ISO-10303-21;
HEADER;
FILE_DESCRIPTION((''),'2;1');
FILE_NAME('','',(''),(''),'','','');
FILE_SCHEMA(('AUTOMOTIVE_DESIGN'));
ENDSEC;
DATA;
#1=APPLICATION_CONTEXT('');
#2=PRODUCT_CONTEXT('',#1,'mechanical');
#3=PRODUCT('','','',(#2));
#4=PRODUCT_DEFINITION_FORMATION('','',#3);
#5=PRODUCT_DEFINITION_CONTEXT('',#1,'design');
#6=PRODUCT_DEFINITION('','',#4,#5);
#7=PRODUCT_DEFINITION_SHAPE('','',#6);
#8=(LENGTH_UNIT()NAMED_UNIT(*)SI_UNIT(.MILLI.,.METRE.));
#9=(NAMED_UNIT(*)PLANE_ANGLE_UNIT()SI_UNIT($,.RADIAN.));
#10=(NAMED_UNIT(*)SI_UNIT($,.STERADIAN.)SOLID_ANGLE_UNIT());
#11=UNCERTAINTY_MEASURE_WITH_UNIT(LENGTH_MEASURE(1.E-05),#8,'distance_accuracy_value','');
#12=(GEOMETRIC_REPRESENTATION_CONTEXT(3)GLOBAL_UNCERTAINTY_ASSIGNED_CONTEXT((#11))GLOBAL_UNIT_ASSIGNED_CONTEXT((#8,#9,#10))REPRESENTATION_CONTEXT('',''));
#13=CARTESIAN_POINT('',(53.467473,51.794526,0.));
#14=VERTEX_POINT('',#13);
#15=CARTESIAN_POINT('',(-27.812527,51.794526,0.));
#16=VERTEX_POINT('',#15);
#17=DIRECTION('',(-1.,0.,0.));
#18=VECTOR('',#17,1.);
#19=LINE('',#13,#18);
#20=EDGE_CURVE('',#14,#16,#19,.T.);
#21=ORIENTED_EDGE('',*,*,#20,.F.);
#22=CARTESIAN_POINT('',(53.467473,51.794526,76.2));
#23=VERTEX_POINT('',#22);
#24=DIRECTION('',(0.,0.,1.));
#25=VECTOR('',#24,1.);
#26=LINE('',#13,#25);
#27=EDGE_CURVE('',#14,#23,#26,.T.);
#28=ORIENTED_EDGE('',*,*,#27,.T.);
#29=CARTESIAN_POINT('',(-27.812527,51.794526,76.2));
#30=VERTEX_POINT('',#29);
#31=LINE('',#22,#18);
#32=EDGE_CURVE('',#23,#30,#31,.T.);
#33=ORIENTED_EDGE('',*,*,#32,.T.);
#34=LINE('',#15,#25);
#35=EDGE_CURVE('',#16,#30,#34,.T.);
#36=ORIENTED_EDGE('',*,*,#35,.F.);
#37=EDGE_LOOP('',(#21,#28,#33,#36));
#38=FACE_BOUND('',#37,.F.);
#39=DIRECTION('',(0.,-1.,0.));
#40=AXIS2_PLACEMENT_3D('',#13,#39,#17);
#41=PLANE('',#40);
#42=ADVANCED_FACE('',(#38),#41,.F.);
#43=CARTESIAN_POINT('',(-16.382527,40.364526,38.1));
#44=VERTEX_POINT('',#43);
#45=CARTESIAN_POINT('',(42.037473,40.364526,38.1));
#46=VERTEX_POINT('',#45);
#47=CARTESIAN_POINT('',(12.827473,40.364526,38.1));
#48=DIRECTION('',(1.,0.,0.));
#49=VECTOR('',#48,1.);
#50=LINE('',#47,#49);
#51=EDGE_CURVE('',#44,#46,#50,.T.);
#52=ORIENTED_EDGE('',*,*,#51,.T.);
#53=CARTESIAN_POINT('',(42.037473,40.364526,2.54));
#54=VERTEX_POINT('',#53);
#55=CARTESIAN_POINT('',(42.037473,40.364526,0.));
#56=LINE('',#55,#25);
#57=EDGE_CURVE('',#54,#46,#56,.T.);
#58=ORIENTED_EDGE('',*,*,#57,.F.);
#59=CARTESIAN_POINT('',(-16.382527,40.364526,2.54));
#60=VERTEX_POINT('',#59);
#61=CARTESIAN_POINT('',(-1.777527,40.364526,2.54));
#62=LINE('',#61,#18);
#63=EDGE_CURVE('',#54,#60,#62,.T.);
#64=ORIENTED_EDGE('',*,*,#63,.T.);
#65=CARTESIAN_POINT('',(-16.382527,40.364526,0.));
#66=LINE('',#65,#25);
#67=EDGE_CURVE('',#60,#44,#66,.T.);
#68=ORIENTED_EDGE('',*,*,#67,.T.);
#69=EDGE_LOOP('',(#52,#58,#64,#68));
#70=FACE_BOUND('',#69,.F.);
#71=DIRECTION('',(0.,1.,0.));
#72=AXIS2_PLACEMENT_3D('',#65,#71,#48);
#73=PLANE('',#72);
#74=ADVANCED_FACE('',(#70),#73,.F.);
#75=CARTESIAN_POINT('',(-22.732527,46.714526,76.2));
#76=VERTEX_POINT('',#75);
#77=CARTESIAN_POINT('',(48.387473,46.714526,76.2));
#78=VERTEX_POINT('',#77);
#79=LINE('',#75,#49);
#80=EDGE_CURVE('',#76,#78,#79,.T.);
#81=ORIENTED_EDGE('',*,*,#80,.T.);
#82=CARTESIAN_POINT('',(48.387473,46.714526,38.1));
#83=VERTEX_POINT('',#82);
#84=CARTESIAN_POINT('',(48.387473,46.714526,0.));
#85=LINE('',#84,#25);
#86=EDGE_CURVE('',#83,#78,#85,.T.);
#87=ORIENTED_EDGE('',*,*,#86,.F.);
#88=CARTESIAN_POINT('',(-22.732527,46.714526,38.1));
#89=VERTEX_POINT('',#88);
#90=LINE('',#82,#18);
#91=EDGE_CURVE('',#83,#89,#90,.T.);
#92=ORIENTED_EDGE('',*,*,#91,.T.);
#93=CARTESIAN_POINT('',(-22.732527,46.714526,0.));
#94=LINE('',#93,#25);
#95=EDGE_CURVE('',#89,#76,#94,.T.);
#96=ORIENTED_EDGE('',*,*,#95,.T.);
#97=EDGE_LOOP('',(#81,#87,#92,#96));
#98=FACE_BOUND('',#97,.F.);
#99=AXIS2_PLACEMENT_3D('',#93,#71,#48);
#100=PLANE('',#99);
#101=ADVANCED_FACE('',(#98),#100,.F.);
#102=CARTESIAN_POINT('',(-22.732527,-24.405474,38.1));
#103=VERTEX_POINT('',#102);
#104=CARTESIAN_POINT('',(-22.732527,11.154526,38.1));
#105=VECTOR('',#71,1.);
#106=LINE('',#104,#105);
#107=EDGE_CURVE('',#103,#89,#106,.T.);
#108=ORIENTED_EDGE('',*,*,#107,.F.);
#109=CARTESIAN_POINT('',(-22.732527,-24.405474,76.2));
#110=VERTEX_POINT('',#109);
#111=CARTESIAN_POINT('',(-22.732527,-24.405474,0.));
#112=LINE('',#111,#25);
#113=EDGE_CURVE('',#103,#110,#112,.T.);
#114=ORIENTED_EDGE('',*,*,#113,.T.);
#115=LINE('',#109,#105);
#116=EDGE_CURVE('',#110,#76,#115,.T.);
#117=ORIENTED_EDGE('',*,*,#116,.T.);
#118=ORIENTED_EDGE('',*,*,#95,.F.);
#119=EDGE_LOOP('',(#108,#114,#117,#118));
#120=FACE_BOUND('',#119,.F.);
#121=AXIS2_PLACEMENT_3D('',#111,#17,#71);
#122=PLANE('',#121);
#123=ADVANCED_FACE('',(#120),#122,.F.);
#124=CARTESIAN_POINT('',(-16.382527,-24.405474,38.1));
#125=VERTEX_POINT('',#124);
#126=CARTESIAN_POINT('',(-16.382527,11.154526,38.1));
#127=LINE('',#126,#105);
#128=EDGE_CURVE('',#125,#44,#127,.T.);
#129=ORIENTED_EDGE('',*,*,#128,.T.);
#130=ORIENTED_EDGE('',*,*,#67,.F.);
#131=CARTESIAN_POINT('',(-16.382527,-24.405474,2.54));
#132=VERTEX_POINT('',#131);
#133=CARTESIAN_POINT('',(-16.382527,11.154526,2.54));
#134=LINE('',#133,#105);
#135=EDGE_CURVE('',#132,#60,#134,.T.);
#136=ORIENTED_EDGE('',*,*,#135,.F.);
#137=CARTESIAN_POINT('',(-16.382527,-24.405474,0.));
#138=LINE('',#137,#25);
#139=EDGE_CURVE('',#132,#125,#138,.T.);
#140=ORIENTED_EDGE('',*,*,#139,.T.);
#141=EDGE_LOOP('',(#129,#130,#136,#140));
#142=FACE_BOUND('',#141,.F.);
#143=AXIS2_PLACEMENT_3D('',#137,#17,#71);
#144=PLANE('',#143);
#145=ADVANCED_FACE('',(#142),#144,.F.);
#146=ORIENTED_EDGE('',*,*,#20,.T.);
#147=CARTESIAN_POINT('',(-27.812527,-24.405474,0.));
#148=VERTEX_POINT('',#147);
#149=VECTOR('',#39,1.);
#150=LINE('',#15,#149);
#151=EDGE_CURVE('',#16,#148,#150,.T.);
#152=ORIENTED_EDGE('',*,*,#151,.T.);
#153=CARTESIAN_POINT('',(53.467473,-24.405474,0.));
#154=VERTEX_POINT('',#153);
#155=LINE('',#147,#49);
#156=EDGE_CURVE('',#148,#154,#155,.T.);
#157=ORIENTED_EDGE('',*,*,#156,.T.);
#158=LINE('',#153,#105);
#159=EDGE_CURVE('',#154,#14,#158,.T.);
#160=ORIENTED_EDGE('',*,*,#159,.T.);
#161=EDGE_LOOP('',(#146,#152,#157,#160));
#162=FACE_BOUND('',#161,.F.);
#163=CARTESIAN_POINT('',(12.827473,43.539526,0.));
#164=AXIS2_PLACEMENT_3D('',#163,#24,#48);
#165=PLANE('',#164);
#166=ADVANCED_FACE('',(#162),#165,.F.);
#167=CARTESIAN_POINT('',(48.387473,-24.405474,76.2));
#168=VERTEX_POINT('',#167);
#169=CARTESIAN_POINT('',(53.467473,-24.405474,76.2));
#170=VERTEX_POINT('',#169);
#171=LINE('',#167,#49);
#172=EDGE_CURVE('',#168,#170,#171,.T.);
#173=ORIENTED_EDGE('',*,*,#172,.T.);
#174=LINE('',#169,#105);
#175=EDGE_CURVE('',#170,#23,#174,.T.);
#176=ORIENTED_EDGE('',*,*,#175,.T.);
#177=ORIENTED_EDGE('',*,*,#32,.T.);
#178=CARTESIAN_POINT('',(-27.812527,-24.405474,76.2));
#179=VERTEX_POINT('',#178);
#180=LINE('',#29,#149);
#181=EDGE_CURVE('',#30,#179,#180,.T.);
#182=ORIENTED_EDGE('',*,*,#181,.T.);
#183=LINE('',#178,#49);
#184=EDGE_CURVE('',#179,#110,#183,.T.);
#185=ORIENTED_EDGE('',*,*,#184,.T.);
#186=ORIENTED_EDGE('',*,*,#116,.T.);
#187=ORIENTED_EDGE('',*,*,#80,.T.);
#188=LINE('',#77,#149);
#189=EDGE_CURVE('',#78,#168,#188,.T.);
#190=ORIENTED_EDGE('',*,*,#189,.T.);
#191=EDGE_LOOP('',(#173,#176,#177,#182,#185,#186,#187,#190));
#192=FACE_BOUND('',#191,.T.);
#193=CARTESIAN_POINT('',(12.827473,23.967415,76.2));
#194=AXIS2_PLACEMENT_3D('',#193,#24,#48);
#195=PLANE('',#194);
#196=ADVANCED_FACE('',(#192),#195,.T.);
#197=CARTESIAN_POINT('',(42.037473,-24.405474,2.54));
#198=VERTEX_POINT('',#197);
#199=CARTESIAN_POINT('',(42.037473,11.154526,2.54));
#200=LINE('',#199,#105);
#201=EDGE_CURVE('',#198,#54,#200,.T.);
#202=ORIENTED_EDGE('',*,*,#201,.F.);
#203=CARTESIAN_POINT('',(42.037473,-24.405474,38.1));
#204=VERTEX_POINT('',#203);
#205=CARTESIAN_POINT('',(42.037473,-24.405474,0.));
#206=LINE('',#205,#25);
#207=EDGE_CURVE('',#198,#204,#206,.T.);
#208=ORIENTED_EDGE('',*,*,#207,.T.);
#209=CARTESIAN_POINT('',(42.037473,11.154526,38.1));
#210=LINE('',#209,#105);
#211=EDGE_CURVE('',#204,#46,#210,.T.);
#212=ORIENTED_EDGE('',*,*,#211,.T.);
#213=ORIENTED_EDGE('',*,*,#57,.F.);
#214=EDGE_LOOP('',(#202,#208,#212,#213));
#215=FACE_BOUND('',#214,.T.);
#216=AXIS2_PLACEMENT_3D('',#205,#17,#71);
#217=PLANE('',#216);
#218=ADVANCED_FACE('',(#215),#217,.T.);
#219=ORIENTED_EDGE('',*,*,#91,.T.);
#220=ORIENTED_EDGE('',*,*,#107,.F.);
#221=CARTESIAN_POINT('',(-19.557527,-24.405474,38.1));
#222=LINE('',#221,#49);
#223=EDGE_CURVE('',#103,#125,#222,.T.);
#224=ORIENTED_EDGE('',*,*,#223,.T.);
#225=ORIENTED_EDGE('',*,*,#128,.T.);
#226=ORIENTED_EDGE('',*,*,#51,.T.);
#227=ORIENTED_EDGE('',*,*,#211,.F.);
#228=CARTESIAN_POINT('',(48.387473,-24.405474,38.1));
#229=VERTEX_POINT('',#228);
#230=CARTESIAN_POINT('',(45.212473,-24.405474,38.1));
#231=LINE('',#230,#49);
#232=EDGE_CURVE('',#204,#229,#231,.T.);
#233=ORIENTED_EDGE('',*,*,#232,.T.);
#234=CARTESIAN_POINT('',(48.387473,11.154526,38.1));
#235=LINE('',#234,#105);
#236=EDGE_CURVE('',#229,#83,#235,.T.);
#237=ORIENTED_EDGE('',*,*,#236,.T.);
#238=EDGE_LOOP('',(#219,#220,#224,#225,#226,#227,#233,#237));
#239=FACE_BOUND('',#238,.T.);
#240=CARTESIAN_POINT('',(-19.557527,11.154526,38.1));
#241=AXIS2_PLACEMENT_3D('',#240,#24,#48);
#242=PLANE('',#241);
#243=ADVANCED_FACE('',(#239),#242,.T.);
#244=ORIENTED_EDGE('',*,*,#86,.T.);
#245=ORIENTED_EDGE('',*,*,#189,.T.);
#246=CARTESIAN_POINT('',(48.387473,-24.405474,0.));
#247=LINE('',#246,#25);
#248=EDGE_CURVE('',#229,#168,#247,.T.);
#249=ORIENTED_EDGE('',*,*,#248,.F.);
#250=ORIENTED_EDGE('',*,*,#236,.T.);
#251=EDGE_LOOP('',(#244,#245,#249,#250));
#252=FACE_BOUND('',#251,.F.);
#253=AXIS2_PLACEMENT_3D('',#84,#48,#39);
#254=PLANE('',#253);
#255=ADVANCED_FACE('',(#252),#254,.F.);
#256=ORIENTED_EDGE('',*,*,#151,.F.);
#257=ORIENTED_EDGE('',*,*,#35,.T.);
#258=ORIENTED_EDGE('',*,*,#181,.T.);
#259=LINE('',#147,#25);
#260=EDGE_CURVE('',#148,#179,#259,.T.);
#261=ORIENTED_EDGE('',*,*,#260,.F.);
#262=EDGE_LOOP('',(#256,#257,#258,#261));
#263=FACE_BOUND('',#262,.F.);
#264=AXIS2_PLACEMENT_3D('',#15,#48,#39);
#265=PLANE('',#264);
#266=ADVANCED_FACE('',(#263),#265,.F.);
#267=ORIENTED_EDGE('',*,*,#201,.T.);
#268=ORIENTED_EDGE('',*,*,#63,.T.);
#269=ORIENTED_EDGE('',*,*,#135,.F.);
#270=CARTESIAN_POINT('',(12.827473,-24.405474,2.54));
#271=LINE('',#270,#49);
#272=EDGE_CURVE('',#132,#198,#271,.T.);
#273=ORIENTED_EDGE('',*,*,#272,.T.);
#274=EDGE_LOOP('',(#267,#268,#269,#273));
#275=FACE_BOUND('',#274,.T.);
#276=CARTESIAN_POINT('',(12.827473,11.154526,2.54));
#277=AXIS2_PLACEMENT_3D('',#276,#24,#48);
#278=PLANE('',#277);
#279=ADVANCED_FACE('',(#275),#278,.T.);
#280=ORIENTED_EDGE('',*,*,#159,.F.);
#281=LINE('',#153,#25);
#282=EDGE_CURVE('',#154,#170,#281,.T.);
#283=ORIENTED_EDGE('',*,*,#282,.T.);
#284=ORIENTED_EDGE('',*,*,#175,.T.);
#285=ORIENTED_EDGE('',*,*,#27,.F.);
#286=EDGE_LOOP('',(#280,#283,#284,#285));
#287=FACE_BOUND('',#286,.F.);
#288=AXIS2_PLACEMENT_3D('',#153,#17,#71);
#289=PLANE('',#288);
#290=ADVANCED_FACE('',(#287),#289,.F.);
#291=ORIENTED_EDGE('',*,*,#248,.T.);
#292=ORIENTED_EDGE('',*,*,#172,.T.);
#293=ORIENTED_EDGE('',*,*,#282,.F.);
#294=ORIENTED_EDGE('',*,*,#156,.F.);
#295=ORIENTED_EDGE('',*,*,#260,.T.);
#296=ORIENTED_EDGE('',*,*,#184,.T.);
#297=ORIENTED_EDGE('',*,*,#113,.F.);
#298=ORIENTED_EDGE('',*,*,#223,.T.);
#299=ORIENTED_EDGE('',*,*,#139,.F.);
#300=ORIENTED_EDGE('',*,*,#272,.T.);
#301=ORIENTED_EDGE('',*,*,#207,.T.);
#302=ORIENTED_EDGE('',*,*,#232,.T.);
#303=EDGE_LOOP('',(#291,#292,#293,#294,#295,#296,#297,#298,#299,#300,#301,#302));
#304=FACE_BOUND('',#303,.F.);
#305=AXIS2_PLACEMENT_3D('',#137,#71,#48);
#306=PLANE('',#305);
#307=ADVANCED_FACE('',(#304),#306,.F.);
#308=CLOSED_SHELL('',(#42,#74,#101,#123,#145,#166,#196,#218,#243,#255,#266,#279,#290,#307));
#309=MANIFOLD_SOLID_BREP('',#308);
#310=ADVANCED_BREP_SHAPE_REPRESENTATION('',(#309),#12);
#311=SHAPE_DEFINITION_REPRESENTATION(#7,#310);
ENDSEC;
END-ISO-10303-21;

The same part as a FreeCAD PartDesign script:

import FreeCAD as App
import Part
import Sketcher
Q = App.Units.Quantity


def add_polygon(sketch, points):
    """Adds a closed chain of lines whose ends are joined by coincident constraints."""
    first, n = sketch.GeometryCount, len(points)
    for a, b in zip(points, points[1:] + points[:1]):
        sketch.addGeometry(Part.LineSegment(App.Vector(*a, 0), App.Vector(*b, 0)), False)
    for i in range(n):
        sketch.addConstraint(Sketcher.Constraint("Coincident", first + i, 2, first + (i + 1) % n, 1))

doc = App.newDocument("Part")
body = doc.addObject("PartDesign::Body", "Body")

# Sketch on XY plane
sketch1 = body.newObject("Sketcher::SketchObject", "Sketch")
sketch1.AttachmentSupport = (doc.getObject("XY_Plane"), [""])
sketch1.MapMode = "FlatFace"
add_polygon(sketch1, [(-28, 52), (-28, -24), (-23, -24), (-23, 47), (48, 47), (48, -24), (53, -24), (53, 52)])  # lines 0-7
sketch1.addConstraint([
    Sketcher.Constraint("Vertical", 0),
    Sketcher.Constraint("Horizontal", 1),
    Sketcher.Constraint("Vertical", 2),
    Sketcher.Constraint("Horizontal", 3),
    Sketcher.Constraint("Vertical", 4),
    Sketcher.Constraint("Horizontal", 5),
    Sketcher.Constraint("Vertical", 6),
    Sketcher.Constraint("Horizontal", 7),
    Sketcher.Constraint("Horizontal", 1, 2, 4, 2),
    Sketcher.Constraint("Equal", 1, 5),
    Sketcher.Constraint("Equal", 3, 2),
    Sketcher.Constraint("DistanceY", 0, 2, 0, 1, Q("3 in")),
    Sketcher.Constraint("DistanceX", 1, 1, 1, 2, Q("0.2 in")),
    Sketcher.Constraint("DistanceX", 3, 1, 3, 2, Q("2.8 in")),
    Sketcher.Constraint("DistanceX", 0, 2, -1, 1, 27.812527),
    Sketcher.Constraint("DistanceY", 0, 2, -1, 1, 24.405474),
])
pad1 = body.newObject("PartDesign::Pad", "Pad")
pad1.Profile = sketch1
pad1.Length = Q("3 in")

# Sketch on XY plane
sketch2 = body.newObject("Sketcher::SketchObject", "Sketch001")
sketch2.AttachmentSupport = (doc.getObject("XY_Plane"), [""])
sketch2.MapMode = "FlatFace"
add_polygon(sketch2, [(-23, 47), (-23, -24), (-16, -24), (-16, 47)])  # lines 0-3
add_polygon(sketch2, [(42, 47), (42, -24), (48, -24), (48, 47)])  # lines 4-7
sketch2.addConstraint([
    Sketcher.Constraint("Vertical", 0),
    Sketcher.Constraint("Horizontal", 1),
    Sketcher.Constraint("Vertical", 2),
    Sketcher.Constraint("Horizontal", 3),
    Sketcher.Constraint("Vertical", 4),
    Sketcher.Constraint("Horizontal", 5),
    Sketcher.Constraint("Vertical", 6),
    Sketcher.Constraint("Horizontal", 7),
    Sketcher.Constraint("Horizontal", 1, 2, 4, 2),
    Sketcher.Constraint("Horizontal", 3, 2, 6, 2),
    Sketcher.Constraint("Equal", 3, 5),
    Sketcher.Constraint("DistanceY", 0, 2, 0, 1, Q("2.8 in")),
    Sketcher.Constraint("DistanceX", 1, 1, 1, 2, Q("0.25 in")),
    Sketcher.Constraint("DistanceX", 1, 2, 4, 2, Q("2.3 in")),
    Sketcher.Constraint("DistanceX", 0, 2, -1, 1, 22.732527),
    Sketcher.Constraint("DistanceY", 0, 2, -1, 1, 24.405474),
])
pad2 = body.newObject("PartDesign::Pad", "Pad001")
pad2.Profile = sketch2
pad2.Length = Q("1.5 in")

# Sketch on XY plane
sketch3 = body.newObject("Sketcher::SketchObject", "Sketch002")
sketch3.AttachmentSupport = (doc.getObject("XY_Plane"), [""])
sketch3.MapMode = "FlatFace"
add_polygon(sketch3, [(-16, 47), (-16, -24), (42, -24), (42, 47)])  # lines 0-3
sketch3.addConstraint([
    Sketcher.Constraint("Vertical", 0),
    Sketcher.Constraint("Horizontal", 1),
    Sketcher.Constraint("Vertical", 2),
    Sketcher.Constraint("Horizontal", 3),
    Sketcher.Constraint("DistanceX", 1, 1, 1, 2, Q("2.3 in")),
    Sketcher.Constraint("DistanceY", 0, 2, 0, 1, Q("2.8 in")),
    Sketcher.Constraint("DistanceX", 0, 2, -1, 1, 16.382527),
    Sketcher.Constraint("DistanceY", 0, 2, -1, 1, 24.405474),
])
pad3 = body.newObject("PartDesign::Pad", "Pad002")
pad3.Profile = sketch3
pad3.Length = Q("0.1 in")

# Sketch on XY plane
sketch4 = body.newObject("Sketcher::SketchObject", "Sketch003")
sketch4.AttachmentSupport = (doc.getObject("XY_Plane"), [""])
sketch4.MapMode = "FlatFace"
add_polygon(sketch4, [(-16, 47), (-16, 40), (42, 40), (42, 47)])  # lines 0-3
sketch4.addConstraint([
    Sketcher.Constraint("Vertical", 0),
    Sketcher.Constraint("Horizontal", 1),
    Sketcher.Constraint("Vertical", 2),
    Sketcher.Constraint("Horizontal", 3),
    Sketcher.Constraint("DistanceX", 1, 1, 1, 2, Q("2.3 in")),
    Sketcher.Constraint("DistanceY", 0, 2, 0, 1, Q("0.25 in")),
    Sketcher.Constraint("DistanceX", 0, 2, -1, 1, 16.382527),
    Sketcher.Constraint("DistanceY", -1, 1, 0, 2, 40.364526),
])
pad4 = body.newObject("PartDesign::Pad", "Pad003")
pad4.Profile = sketch4
pad4.Length = Q("1.5 in")

doc.recompute()
